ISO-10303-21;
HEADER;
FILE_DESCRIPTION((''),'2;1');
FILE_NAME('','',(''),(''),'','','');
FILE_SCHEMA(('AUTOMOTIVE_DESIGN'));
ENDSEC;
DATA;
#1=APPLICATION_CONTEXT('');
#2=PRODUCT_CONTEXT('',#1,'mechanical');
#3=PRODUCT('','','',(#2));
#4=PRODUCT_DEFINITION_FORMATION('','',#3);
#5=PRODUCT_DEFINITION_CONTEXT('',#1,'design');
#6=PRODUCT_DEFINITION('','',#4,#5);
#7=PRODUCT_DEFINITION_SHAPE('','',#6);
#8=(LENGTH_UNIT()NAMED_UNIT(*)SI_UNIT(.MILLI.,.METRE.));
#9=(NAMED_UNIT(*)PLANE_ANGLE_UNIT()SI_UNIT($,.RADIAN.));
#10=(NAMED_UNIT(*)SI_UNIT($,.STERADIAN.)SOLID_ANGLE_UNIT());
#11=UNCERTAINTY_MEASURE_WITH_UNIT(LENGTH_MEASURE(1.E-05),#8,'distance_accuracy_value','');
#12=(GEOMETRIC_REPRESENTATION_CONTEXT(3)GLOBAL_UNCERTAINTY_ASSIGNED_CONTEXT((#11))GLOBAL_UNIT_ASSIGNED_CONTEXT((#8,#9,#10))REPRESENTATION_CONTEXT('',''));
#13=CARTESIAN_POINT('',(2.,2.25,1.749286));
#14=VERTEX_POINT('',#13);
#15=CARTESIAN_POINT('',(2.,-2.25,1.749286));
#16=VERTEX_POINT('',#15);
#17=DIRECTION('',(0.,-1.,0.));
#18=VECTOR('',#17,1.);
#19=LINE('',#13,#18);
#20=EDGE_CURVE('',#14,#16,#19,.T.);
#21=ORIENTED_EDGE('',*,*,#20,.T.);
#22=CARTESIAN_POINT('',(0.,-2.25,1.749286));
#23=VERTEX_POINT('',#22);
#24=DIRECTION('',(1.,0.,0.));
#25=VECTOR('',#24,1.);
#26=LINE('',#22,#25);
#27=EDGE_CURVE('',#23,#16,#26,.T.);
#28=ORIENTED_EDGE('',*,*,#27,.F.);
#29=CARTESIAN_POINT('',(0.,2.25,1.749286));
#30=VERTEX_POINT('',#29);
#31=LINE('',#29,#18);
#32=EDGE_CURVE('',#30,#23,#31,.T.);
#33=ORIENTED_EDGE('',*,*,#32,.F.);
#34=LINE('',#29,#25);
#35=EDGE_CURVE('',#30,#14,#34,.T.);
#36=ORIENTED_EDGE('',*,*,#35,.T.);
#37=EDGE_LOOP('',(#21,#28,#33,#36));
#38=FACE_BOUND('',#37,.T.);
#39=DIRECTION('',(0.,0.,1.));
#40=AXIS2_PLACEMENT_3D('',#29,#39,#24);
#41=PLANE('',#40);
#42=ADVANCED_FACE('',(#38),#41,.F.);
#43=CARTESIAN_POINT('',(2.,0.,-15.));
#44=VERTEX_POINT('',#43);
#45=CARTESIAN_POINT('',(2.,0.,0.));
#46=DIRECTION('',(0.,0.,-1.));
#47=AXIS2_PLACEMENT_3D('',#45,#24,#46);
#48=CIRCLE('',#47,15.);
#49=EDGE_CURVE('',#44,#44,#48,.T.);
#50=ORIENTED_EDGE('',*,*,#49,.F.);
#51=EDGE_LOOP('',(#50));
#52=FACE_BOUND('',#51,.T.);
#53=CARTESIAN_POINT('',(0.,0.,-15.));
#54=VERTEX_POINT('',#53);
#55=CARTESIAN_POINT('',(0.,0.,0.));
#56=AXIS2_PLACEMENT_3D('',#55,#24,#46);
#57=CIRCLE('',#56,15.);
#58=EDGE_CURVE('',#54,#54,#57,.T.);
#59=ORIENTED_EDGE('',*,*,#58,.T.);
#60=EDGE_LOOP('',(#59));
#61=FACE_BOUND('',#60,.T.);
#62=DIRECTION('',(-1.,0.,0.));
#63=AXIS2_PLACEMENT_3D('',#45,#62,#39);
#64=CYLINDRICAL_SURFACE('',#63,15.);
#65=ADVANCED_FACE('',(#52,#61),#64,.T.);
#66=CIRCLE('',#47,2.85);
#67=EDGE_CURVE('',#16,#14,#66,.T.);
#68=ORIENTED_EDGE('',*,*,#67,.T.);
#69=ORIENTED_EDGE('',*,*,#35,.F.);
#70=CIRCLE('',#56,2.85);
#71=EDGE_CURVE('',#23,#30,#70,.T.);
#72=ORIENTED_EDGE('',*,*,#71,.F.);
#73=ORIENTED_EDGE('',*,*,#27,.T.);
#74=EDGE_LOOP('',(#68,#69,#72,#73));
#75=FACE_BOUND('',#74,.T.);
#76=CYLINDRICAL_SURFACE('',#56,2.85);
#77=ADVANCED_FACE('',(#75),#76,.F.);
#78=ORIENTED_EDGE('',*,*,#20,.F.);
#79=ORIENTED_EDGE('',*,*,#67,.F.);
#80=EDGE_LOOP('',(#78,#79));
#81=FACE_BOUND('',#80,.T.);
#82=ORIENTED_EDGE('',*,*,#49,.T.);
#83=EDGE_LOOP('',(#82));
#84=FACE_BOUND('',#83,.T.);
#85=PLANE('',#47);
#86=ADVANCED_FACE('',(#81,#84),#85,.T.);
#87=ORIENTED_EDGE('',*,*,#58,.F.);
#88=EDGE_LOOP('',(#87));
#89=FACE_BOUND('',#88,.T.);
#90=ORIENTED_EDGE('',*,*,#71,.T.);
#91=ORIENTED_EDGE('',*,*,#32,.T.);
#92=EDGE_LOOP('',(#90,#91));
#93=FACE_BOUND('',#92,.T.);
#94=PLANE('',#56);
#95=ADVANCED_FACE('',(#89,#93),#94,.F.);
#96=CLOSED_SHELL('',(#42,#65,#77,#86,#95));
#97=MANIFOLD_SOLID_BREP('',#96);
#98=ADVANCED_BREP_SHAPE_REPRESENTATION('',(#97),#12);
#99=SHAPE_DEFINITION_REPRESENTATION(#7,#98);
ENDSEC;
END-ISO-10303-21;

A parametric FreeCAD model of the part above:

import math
import FreeCAD as App
import Part
import Sketcher
Q = App.Units.Quantity

doc = App.newDocument("Part")
body = doc.addObject("PartDesign::Body", "Body")

sketch1 = body.newObject("Sketcher::SketchObject", "Sketch")
sketch1.AttachmentSupport = (doc.getObject("YZ_Plane"), [""])
sketch1.MapMode = "FlatFace"
sketch1.addGeometry(Part.Circle(App.Vector(0, 0, 0), App.Vector(0, 0, 1), 15), False)
sketch1.addConstraint(Sketcher.Constraint("Coincident", 0, 3, -1, 1))
sketch1.addConstraint(Sketcher.Constraint("Diameter", 0, Q("30 mm")))
pad1 = body.newObject("PartDesign::Pad", "Pad")
pad1.Profile = sketch1
pad1.Length = 2

sketch2 = body.newObject("Sketcher::SketchObject", "Sketch001")
sketch2.AttachmentSupport = (doc.getObject("YZ_Plane"), [""])
sketch2.MapMode = "FlatFace"
sketch2.AttachmentOffset = App.Placement(App.Vector(0, 0, 2), App.Rotation())
sketch2.addGeometry(Part.LineSegment(App.Vector(2.2, 1.7, 0), App.Vector(-2.2, 1.7, 0)), False)
sketch2.addGeometry(Part.ArcOfCircle(Part.Circle(App.Vector(0, 0, 0), App.Vector(0, 0, 1), 2.9), math.radians(142), math.radians(398)), False)
sketch2.addConstraint(Sketcher.Constraint("Coincident", 0, 1, 1, 2))
sketch2.addConstraint(Sketcher.Constraint("Coincident", 1, 1, 0, 2))
sketch2.addConstraint(Sketcher.Constraint("Horizontal", 0))
sketch2.addConstraint(Sketcher.Constraint("Coincident", 1, 3, -1, 1))
sketch2.addConstraint(Sketcher.Constraint("Radius", 1, Q("2.85 mm")))
sketch2.addConstraint(Sketcher.Constraint("DistanceX", 0, 2, 0, 1, Q("4.5 mm")))
pocket1 = body.newObject("PartDesign::Pocket", "Pocket")
pocket1.Profile = sketch2
pocket1.Type = "ThroughAll"

doc.recompute()
